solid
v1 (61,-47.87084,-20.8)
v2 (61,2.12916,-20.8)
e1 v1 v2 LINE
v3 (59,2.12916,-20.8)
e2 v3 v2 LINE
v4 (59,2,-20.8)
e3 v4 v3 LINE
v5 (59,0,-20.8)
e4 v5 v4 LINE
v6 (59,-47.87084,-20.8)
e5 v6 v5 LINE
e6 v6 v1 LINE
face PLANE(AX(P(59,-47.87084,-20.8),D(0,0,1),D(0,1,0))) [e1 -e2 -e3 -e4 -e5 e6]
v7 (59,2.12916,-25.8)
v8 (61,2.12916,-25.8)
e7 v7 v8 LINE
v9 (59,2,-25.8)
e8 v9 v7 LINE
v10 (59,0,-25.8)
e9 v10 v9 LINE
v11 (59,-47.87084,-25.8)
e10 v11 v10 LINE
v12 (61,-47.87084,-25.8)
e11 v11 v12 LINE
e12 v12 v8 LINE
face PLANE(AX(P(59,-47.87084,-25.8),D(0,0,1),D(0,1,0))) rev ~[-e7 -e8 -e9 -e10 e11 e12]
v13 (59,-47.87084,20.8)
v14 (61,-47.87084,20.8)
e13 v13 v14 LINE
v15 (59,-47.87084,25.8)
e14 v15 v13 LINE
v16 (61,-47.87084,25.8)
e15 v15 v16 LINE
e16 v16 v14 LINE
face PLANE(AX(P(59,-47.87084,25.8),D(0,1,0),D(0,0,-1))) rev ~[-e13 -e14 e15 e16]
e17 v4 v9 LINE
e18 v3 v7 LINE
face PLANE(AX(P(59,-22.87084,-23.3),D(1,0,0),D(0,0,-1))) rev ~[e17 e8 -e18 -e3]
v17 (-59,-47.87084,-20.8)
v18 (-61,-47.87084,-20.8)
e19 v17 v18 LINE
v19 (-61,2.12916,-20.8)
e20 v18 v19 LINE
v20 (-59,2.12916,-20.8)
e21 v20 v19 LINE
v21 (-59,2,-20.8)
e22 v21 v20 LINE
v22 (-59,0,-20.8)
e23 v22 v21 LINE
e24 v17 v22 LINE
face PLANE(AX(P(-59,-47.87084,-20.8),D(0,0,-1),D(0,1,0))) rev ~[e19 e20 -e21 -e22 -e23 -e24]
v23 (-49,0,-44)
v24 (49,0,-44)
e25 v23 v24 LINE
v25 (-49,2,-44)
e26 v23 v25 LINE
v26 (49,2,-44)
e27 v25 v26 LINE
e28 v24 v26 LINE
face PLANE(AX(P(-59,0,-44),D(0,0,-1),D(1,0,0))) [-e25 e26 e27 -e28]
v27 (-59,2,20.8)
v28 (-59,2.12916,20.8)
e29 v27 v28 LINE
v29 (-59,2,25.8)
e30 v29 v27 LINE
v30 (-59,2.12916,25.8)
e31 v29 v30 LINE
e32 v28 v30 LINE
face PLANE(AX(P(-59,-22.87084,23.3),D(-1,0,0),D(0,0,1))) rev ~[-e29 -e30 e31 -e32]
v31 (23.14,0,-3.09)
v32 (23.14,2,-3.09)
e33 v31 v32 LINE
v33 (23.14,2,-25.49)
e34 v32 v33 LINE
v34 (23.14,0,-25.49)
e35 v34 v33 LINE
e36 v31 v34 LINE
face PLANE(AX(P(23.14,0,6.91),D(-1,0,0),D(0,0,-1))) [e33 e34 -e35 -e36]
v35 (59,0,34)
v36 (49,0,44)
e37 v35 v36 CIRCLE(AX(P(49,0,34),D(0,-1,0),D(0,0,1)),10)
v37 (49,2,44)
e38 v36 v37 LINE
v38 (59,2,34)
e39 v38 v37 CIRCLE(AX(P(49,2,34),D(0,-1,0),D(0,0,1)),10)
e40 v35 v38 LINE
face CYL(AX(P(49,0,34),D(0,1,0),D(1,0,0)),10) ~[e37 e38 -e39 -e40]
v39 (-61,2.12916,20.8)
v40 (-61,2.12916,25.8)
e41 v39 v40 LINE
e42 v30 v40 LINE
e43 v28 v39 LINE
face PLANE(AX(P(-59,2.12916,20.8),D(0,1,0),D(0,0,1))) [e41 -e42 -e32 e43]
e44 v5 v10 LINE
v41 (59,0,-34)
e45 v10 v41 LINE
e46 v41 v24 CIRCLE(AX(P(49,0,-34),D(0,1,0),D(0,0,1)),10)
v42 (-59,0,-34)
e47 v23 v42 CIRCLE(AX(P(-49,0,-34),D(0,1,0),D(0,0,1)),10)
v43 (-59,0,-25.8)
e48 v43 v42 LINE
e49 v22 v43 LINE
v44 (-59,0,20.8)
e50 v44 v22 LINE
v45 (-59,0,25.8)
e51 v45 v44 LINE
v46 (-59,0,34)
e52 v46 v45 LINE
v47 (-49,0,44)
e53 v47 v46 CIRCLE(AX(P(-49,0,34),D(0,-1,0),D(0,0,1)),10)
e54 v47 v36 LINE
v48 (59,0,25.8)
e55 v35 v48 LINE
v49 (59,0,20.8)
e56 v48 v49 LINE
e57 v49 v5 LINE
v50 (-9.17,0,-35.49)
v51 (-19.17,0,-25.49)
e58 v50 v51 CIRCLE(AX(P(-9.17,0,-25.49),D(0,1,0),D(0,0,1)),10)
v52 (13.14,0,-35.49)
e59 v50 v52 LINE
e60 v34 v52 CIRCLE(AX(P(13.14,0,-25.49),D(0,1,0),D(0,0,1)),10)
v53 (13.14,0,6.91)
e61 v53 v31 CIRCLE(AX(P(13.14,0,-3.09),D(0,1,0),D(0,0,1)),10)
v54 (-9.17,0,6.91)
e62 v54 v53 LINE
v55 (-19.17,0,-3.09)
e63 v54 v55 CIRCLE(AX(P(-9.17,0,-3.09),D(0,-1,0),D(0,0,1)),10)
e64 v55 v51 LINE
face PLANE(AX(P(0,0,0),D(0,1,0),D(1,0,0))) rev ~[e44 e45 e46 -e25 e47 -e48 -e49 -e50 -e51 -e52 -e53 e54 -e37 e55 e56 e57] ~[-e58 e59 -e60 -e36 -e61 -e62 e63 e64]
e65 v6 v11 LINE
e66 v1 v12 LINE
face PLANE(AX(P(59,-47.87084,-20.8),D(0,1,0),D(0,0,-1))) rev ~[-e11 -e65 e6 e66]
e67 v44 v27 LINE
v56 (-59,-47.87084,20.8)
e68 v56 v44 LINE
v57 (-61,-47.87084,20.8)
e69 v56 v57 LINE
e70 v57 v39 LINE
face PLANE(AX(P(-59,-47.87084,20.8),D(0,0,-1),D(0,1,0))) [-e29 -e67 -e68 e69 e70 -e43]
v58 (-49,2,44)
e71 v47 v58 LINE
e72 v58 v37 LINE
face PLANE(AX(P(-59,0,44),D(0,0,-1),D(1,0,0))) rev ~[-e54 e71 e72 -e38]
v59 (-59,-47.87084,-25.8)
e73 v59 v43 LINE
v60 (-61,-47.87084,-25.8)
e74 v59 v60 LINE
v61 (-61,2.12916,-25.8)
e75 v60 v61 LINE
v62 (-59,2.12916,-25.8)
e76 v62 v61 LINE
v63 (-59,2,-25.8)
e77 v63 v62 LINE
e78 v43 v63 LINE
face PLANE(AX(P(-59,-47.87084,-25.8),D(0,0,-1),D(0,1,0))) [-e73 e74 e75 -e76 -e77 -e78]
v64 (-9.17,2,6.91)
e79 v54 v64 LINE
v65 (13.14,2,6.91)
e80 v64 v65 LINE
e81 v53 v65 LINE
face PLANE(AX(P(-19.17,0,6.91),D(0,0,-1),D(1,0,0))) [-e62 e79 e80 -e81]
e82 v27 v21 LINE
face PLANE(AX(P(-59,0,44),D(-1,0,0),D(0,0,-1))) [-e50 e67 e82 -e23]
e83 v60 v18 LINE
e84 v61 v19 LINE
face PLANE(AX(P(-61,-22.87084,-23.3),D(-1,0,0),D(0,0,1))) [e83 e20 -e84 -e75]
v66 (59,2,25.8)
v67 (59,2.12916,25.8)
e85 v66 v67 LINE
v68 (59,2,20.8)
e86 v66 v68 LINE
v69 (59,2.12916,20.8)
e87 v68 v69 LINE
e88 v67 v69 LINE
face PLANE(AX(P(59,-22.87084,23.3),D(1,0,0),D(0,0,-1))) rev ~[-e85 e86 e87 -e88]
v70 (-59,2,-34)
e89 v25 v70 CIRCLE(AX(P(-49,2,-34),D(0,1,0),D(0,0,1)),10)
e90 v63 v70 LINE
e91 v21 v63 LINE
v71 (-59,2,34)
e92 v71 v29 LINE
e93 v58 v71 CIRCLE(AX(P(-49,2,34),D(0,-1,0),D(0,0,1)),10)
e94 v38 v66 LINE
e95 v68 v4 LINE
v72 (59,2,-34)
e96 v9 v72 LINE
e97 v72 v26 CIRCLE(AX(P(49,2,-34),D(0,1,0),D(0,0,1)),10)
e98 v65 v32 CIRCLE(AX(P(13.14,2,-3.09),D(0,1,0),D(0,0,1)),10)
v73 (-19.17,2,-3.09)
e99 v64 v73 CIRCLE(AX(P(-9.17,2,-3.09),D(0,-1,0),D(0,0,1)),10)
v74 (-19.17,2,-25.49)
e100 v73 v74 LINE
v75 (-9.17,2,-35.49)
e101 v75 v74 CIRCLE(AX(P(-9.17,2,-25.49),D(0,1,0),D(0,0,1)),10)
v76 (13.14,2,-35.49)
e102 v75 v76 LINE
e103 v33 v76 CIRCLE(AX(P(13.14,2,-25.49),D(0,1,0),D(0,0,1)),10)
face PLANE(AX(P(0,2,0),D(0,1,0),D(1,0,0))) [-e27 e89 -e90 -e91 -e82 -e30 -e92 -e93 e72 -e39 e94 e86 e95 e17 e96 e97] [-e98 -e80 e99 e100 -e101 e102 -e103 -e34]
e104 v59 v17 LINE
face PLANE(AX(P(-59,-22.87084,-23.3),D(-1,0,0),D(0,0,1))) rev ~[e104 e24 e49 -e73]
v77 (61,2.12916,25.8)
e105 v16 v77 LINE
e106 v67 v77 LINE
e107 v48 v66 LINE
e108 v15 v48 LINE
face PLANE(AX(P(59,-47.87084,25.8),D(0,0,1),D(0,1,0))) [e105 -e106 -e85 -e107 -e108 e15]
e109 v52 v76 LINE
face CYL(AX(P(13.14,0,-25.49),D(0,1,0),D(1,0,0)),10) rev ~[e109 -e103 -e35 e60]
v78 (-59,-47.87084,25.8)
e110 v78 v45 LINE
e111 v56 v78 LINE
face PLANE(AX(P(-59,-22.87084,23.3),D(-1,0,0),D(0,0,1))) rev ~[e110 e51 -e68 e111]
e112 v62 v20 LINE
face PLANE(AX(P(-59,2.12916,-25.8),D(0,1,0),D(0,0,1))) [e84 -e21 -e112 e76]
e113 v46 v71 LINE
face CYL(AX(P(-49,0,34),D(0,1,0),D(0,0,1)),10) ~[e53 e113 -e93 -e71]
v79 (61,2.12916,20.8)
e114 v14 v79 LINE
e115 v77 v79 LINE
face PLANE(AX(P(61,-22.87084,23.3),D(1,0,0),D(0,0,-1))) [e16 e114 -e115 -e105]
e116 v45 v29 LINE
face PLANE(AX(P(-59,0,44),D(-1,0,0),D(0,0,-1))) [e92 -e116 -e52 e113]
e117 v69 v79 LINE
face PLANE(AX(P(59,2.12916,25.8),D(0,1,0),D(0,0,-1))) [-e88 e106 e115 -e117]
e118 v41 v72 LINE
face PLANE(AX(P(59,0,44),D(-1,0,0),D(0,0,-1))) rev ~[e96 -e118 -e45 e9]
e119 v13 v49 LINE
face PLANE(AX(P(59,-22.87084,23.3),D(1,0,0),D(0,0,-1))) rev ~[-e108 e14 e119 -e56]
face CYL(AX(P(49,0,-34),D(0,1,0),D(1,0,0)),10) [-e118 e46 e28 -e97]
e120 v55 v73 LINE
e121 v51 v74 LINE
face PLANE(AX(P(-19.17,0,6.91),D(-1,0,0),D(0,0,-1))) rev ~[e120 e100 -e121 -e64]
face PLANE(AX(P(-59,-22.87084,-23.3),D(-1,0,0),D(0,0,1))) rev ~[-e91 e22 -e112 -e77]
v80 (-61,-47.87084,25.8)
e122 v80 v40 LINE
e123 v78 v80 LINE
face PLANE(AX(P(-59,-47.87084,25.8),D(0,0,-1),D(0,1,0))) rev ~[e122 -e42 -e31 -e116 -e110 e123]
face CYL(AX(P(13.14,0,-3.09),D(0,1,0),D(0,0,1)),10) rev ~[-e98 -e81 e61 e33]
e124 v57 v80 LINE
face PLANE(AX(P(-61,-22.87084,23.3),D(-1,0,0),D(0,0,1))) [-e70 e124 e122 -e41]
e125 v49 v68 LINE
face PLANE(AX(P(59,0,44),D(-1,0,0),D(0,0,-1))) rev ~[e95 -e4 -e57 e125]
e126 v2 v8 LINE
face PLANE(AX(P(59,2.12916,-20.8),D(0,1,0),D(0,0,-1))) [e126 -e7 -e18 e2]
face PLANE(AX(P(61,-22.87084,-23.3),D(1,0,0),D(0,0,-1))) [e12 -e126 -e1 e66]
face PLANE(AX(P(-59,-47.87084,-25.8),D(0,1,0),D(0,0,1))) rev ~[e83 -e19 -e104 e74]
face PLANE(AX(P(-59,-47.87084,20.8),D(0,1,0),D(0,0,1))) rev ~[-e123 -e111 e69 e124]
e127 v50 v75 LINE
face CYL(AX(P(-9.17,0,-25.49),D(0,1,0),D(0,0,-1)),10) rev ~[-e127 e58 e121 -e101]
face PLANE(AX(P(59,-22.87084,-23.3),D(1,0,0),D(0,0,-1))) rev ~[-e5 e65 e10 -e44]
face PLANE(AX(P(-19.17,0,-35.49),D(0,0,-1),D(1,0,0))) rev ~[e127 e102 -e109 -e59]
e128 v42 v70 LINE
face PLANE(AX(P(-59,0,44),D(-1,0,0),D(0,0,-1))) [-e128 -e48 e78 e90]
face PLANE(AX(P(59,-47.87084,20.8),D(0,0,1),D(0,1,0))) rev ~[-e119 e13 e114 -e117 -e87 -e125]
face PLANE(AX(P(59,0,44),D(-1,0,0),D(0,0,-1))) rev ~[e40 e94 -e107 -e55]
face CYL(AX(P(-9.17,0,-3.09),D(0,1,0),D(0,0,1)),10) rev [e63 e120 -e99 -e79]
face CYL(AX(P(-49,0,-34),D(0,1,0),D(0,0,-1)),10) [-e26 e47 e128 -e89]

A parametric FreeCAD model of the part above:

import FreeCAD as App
import Part
import Sketcher

V = App.Vector
Q = App.Units.Quantity


def edges_at(feature, points):
    """Names of the edges that pass closest to the given points."""
    edges = feature.Shape.Edges
    near = lambda p: min(range(len(edges)), key=lambda i: edges[i].distToShape(Part.Vertex(*p))[0])
    return sorted({f"Edge{near(p) + 1}" for p in points})

doc = App.newDocument("Part")
params = doc.addObject("Spreadsheet::Sheet", "Params")
for row, (alias, value) in enumerate([
    ("sketch1_width", "118 mm"),
    ("sketch1_height", "88 mm"),
    ("pad1_length", "2 mm"),
    ("fillet_radius", "10 mm"),
    ("fillet2_radius", "10 mm"),
    ("sketch2_height", "42.4 mm"),
    ("sketch2_width", "42.31 mm"),
    ("pocket1_length", "2 mm"),
    ("fillet3_radius", "10 mm"),
    ("sketch3_width", "50 mm"),
    ("sketch3_height", "5 mm"),
    ("pad2_length", "2 mm"),
    ("sketch4_width", "50 mm"),
    ("sketch4_height", "5 mm"),
    ("pad3_length", "2 mm"),
], start=1):
    params.set(f"A{row}", alias)
    params.set(f"B{row}", "=" + value)
    params.setAlias(f"B{row}", alias)

body = doc.addObject("PartDesign::Body", "Body")

sketch1 = body.newObject("Sketcher::SketchObject", "Sketch")
sketch1.AttachmentSupport = (doc.getObject("XZ_Plane"), [""])
sketch1.MapMode = "FlatFace"
sketch1.addGeometry([
    Part.LineSegment(V(-59, -44, 0), V(-59, 44, 0)),
    Part.LineSegment(V(-59, 44, 0), V(59, 44, 0)),
    Part.LineSegment(V(59, 44, 0), V(59, -44, 0)),
    Part.LineSegment(V(59, -44, 0), V(-59, -44, 0)),
], False)
sketch1.addConstraint([
    Sketcher.Constraint("Coincident", 0, 2, 1, 1),
    Sketcher.Constraint("Coincident", 1, 2, 2, 1),
    Sketcher.Constraint("Coincident", 2, 2, 3, 1),
    Sketcher.Constraint("Coincident", 3, 2, 0, 1),
    Sketcher.Constraint("Vertical", 0),
    Sketcher.Constraint("Horizontal", 1),
    Sketcher.Constraint("Vertical", 2),
    Sketcher.Constraint("Horizontal", 3),
    Sketcher.Constraint("Symmetric", 0, 2, 2, 2, -1, 1),
    Sketcher.Constraint("DistanceX", 1, 1, 1, 2, Q("118 mm")),
    Sketcher.Constraint("DistanceY", 0, 1, 0, 2, Q("88 mm")),
])
sketch1.setExpression("Constraints[9]", "Params.sketch1_width")
sketch1.setExpression("Constraints[10]", "Params.sketch1_height")
pad1 = body.newObject("PartDesign::Pad", "Pad")
pad1.Profile = sketch1
pad1.setExpression("Length", "Params.pad1_length")
pad1.Reversed = True
doc.recompute()

fillet = body.newObject("PartDesign::Fillet", "Fillet")
fillet.Base = (pad1, edges_at(pad1, [(59, 1, -44)]))
fillet.setExpression("Radius", "Params.fillet_radius")
doc.recompute()

fillet2 = body.newObject("PartDesign::Fillet", "Fillet001")
fillet2.Base = (fillet, edges_at(fillet, [(59, 1, 44), (-59, 1, 44), (-59, 1, -44)]))
fillet2.setExpression("Radius", "Params.fillet2_radius")

sketch2 = body.newObject("Sketcher::SketchObject", "Sketch001")
sketch2.AttachmentSupport = (doc.getObject("XZ_Plane"), [""])
sketch2.MapMode = "FlatFace"
sketch2.addGeometry([
    Part.LineSegment(V(-19, -35, 0), V(-19, 7, 0)),
    Part.LineSegment(V(-19, 7, 0), V(23, 7, 0)),
    Part.LineSegment(V(23, 7, 0), V(23, -35, 0)),
    Part.LineSegment(V(23, -35, 0), V(-19, -35, 0)),
], False)
sketch2.addConstraint([
    Sketcher.Constraint("Coincident", 0, 2, 1, 1),
    Sketcher.Constraint("Coincident", 1, 2, 2, 1),
    Sketcher.Constraint("Coincident", 2, 2, 3, 1),
    Sketcher.Constraint("Coincident", 3, 2, 0, 1),
    Sketcher.Constraint("Vertical", 0),
    Sketcher.Constraint("Horizontal", 1),
    Sketcher.Constraint("Vertical", 2),
    Sketcher.Constraint("Horizontal", 3),
    Sketcher.Constraint("DistanceY", 0, 1, 0, 2, Q("42.4 mm")),
    Sketcher.Constraint("DistanceX", 1, 1, 1, 2, Q("42.31 mm")),
    Sketcher.Constraint("DistanceX", 0, 2, -1, 1, Q("19.17 mm")),
    Sketcher.Constraint("DistanceY", -1, 1, 0, 2, Q("6.91 mm")),
])
sketch2.setExpression("Constraints[8]", "Params.sketch2_height")
sketch2.setExpression("Constraints[9]", "Params.sketch2_width")
pocket1 = body.newObject("PartDesign::Pocket", "Pocket")
pocket1.Profile = sketch2
pocket1.setExpression("Length", "Params.pocket1_length")
doc.recompute()

fillet3 = body.newObject("PartDesign::Fillet", "Fillet002")
fillet3.Base = (pocket1, edges_at(pocket1, [
    (-19.17, 1, -35.49),
    (-19.17, 1, 6.91),
    (23.14, 1, 6.91),
    (23.14, 1, -35.49),
]))
fillet3.setExpression("Radius", "Params.fillet3_radius")

sketch3 = body.newObject("Sketcher::SketchObject", "Sketch002")
sketch3.AttachmentSupport = (doc.getObject("YZ_Plane"), [""])
sketch3.MapMode = "FlatFace"
sketch3.AttachmentOffset = App.Placement(V(0, 0, 59), App.Rotation())
sketch3.addGeometry([
    Part.LineSegment(V(2, 26, 0), V(-48, 26, 0)),
    Part.LineSegment(V(-48, 26, 0), V(-48, 21, 0)),
    Part.LineSegment(V(-48, 21, 0), V(2, 21, 0)),
    Part.LineSegment(V(2, 21, 0), V(2, 26, 0)),
    Part.LineSegment(V(2, -21, 0), V(-48, -21, 0)),
    Part.LineSegment(V(-48, -21, 0), V(-48, -26, 0)),
    Part.LineSegment(V(-48, -26, 0), V(2, -26, 0)),
    Part.LineSegment(V(2, -26, 0), V(2, -21, 0)),
], False)
sketch3.addConstraint([
    Sketcher.Constraint("Coincident", 0, 2, 1, 1),
    Sketcher.Constraint("Coincident", 1, 2, 2, 1),
    Sketcher.Constraint("Coincident", 2, 2, 3, 1),
    Sketcher.Constraint("Coincident", 3, 2, 0, 1),
    Sketcher.Constraint("Coincident", 4, 2, 5, 1),
    Sketcher.Constraint("Coincident", 5, 2, 6, 1),
    Sketcher.Constraint("Coincident", 6, 2, 7, 1),
    Sketcher.Constraint("Coincident", 7, 2, 4, 1),
    Sketcher.Constraint("Horizontal", 0),
    Sketcher.Constraint("Vertical", 1),
    Sketcher.Constraint("Horizontal", 2),
    Sketcher.Constraint("Vertical", 3),
    Sketcher.Constraint("Horizontal", 4),
    Sketcher.Constraint("Vertical", 5),
    Sketcher.Constraint("Horizontal", 6),
    Sketcher.Constraint("Vertical", 7),
    Sketcher.Constraint("Symmetric", 1, 2, 4, 2, -1),
    Sketcher.Constraint("Symmetric", 3, 2, 6, 2, -1),
    Sketcher.Constraint("DistanceX", 0, 2, 0, 1, Q("50 mm")),
    Sketcher.Constraint("DistanceY", 1, 2, 1, 1, Q("5 mm")),
    Sketcher.Constraint("DistanceY", -1, 1, 0, 2, Q("25.8 mm")),
    Sketcher.Constraint("DistanceX", 0, 2, -1, 1, Q("47.87084 mm")),
])
sketch3.setExpression("Constraints[18]", "Params.sketch3_width")
sketch3.setExpression("Constraints[19]", "Params.sketch3_height")
pad2 = body.newObject("PartDesign::Pad", "Pad001")
pad2.Profile = sketch3
pad2.setExpression("Length", "Params.pad2_length")

sketch4 = body.newObject("Sketcher::SketchObject", "Sketch003")
sketch4.AttachmentSupport = (doc.getObject("YZ_Plane"), [""])
sketch4.MapMode = "FlatFace"
sketch4.AttachmentOffset = App.Placement(V(0, 0, -59), App.Rotation())
sketch4.addGeometry([
    Part.LineSegment(V(2, -26, 0), V(-48, -26, 0)),
    Part.LineSegment(V(-48, -26, 0), V(-48, -21, 0)),
    Part.LineSegment(V(-48, -21, 0), V(2, -21, 0)),
    Part.LineSegment(V(2, -21, 0), V(2, -26, 0)),
    Part.LineSegment(V(2, 21, 0), V(-48, 21, 0)),
    Part.LineSegment(V(-48, 21, 0), V(-48, 26, 0)),
    Part.LineSegment(V(-48, 26, 0), V(2, 26, 0)),
    Part.LineSegment(V(2, 26, 0), V(2, 21, 0)),
], False)
sketch4.addConstraint([
    Sketcher.Constraint("Coincident", 0, 2, 1, 1),
    Sketcher.Constraint("Coincident", 1, 2, 2, 1),
    Sketcher.Constraint("Coincident", 2, 2, 3, 1),
    Sketcher.Constraint("Coincident", 3, 2, 0, 1),
    Sketcher.Constraint("Coincident", 4, 2, 5, 1),
    Sketcher.Constraint("Coincident", 5, 2, 6, 1),
    Sketcher.Constraint("Coincident", 6, 2, 7, 1),
    Sketcher.Constraint("Coincident", 7, 2, 4, 1),
    Sketcher.Constraint("Horizontal", 0),
    Sketcher.Constraint("Vertical", 1),
    Sketcher.Constraint("Horizontal", 2),
    Sketcher.Constraint("Vertical", 3),
    Sketcher.Constraint("Horizontal", 4),
    Sketcher.Constraint("Vertical", 5),
    Sketcher.Constraint("Horizontal", 6),
    Sketcher.Constraint("Vertical", 7),
    Sketcher.Constraint("Symmetric", 1, 2, 4, 2, -1),
    Sketcher.Constraint("Symmetric", 3, 2, 6, 2, -1),
    Sketcher.Constraint("DistanceX", 0, 2, 0, 1, Q("50 mm")),
    Sketcher.Constraint("DistanceY", 1, 1, 1, 2, Q("5 mm")),
    Sketcher.Constraint("DistanceY", 0, 2, -1, 1, Q("25.8 mm")),
    Sketcher.Constraint("DistanceX", 0, 2, -1, 1, Q("47.87084 mm")),
])
sketch4.setExpression("Constraints[18]", "Params.sketch4_width")
sketch4.setExpression("Constraints[19]", "Params.sketch4_height")
pad3 = body.newObject("PartDesign::Pad", "Pad002")
pad3.Profile = sketch4
pad3.setExpression("Length", "Params.pad3_length")
pad3.Reversed = True

doc.recompute()
